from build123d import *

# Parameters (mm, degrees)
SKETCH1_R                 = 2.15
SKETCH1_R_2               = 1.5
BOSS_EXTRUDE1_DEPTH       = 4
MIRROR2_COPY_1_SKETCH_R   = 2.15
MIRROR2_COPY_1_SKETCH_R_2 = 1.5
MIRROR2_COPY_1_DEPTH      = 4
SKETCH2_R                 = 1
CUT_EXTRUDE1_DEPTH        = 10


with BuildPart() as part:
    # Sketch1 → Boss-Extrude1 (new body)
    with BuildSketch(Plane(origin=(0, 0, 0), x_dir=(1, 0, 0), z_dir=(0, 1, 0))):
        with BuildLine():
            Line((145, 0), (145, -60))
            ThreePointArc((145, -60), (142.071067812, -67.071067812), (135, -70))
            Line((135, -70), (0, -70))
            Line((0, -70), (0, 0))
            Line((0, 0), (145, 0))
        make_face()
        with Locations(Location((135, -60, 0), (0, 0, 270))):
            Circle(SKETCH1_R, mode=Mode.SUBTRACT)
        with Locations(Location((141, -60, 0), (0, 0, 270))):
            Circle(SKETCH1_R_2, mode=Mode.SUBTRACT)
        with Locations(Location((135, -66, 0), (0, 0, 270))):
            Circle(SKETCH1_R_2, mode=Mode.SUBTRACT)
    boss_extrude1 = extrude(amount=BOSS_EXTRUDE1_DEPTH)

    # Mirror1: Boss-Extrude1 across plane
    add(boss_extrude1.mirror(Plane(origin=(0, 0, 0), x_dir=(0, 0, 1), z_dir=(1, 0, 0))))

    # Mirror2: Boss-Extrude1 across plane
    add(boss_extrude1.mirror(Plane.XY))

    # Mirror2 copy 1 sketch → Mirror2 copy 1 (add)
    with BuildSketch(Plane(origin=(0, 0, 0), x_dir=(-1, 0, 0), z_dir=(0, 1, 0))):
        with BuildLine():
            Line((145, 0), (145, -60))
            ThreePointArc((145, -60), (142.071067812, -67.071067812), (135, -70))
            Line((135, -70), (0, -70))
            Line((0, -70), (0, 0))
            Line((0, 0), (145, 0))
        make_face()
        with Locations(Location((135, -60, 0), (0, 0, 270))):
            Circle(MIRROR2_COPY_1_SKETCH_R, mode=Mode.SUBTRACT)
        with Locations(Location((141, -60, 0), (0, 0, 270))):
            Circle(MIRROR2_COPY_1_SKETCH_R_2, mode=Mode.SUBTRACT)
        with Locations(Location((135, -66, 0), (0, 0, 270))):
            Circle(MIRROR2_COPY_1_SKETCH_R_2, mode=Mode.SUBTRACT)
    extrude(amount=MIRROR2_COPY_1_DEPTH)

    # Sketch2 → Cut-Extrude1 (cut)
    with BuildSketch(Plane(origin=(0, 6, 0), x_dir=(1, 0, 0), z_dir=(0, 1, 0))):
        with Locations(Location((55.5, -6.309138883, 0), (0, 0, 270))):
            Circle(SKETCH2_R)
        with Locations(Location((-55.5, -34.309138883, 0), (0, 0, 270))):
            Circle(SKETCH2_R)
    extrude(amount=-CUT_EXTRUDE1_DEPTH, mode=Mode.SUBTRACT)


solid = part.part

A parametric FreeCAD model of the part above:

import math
import FreeCAD as App
import Part
import Sketcher

V = App.Vector
Q = App.Units.Quantity

doc = App.newDocument("Part")
body = doc.addObject("PartDesign::Body", "Body")

sketch1 = doc.addObject("Sketcher::SketchObject", "Sketch")
body.addObject(sketch1)
sketch1.AttachmentSupport = (doc.XZ_Plane, [""])
sketch1.MapMode = "FlatFace"
sketch1.addGeometry(Part.LineSegment(V(145, 60, 0), V(145, 0, 0)), False)
sketch1.addGeometry(Part.LineSegment(V(145, 0, 0), V(0, 0, 0)), False)
sketch1.addGeometry(Part.LineSegment(V(0, 0, 0), V(0, 70, 0)), False)
sketch1.addGeometry(Part.LineSegment(V(0, 70, 0), V(135, 70, 0)), False)
sketch1.addGeometry(Part.ArcOfCircle(Part.Circle(V(135, 60, 0), V(0, 0, 1), 10), math.radians(0), math.radians(90)), False)
sketch1.addGeometry(Part.Circle(V(135, 66, 0), V(0, 0, 1), 1.5), False)
sketch1.addGeometry(Part.Circle(V(141, 60, 0), V(0, 0, 1), 1.5), False)
sketch1.addGeometry(Part.Circle(V(135, 60, 0), V(0, 0, 1), 2.1), False)
sketch1.addConstraint(Sketcher.Constraint("Coincident", 0, 2, 1, 1))
sketch1.addConstraint(Sketcher.Constraint("Coincident", 1, 2, 2, 1))
sketch1.addConstraint(Sketcher.Constraint("Coincident", 2, 2, 3, 1))
sketch1.addConstraint(Sketcher.Constraint("Tangent", 3, 2, 4, 2))
sketch1.addConstraint(Sketcher.Constraint("Tangent", 4, 1, 0, 1))
sketch1.addConstraint(Sketcher.Constraint("Vertical", 0))
sketch1.addConstraint(Sketcher.Constraint("Horizontal", 1))
sketch1.addConstraint(Sketcher.Constraint("Vertical", 2))
sketch1.addConstraint(Sketcher.Constraint("Horizontal", 3))
sketch1.addConstraint(Sketcher.Constraint("Coincident", 1, 2, -1, 1))
sketch1.addConstraint(Sketcher.Constraint("Coincident", 7, 3, 4, 3))
sketch1.addConstraint(Sketcher.Constraint("Equal", 5, 6))
sketch1.addConstraint(Sketcher.Constraint("Horizontal", 4, 3, 6, 3))
sketch1.addConstraint(Sketcher.Constraint("Vertical", 4, 3, 5, 3))
sketch1.addConstraint(Sketcher.Constraint("Diameter", 5, Q("3 mm")))
sketch1.addConstraint(Sketcher.Constraint("Radius", 4, Q("10 mm")))
sketch1.addConstraint(Sketcher.Constraint("Diameter", 7, Q("4.3 mm")))
sketch1.addConstraint(Sketcher.Constraint("DistanceX", 1, 2, 1, 1, Q("145 mm")))
sketch1.addConstraint(Sketcher.Constraint("DistanceY", 0, 2, 0, 1, Q("60 mm")))
sketch1.addConstraint(Sketcher.Constraint("DistanceY", -1, 1, 5, 3, Q("66 mm")))
sketch1.addConstraint(Sketcher.Constraint("DistanceX", -1, 1, 6, 3, Q("141 mm")))
pad1 = doc.addObject("PartDesign::Pad", "Pad")
body.addObject(pad1)
pad1.Profile = sketch1
pad1.Length = 4
pad1.Reversed = True
doc.recompute()

mirrored = doc.addObject("PartDesign::Mirrored", "Mirrored")
body.addObject(mirrored)
mirrored.Originals = [pad1]
mirrored.MirrorPlane = (doc.YZ_Plane, [""])
body.Tip = mirrored
doc.recompute()

mirrored2 = doc.addObject("PartDesign::Mirrored", "Mirrored001")
body.addObject(mirrored2)
mirrored2.Originals = [pad1]
mirrored2.MirrorPlane = (doc.XY_Plane, [""])
body.Tip = mirrored2

sketch2 = doc.addObject("Sketcher::SketchObject", "Sketch001")
body.addObject(sketch2)
sketch2.AttachmentSupport = (doc.XZ_Plane, [""])
sketch2.MapMode = "FlatFace"
sketch2.addGeometry(Part.LineSegment(V(-145, -60, 0), V(-145, 0, 0)), False)
sketch2.addGeometry(Part.LineSegment(V(-145, 0, 0), V(0, 0, 0)), False)
sketch2.addGeometry(Part.LineSegment(V(0, 0, 0), V(0, -70, 0)), False)
sketch2.addGeometry(Part.LineSegment(V(0, -70, 0), V(-135, -70, 0)), False)
sketch2.addGeometry(Part.ArcOfCircle(Part.Circle(V(-135, -60, 0), V(0, 0, 1), 10), math.radians(180), math.radians(270)), False)
sketch2.addGeometry(Part.Circle(V(-135, -66, 0), V(0, 0, 1), 1.5), False)
sketch2.addGeometry(Part.Circle(V(-141, -60, 0), V(0, 0, 1), 1.5), False)
sketch2.addGeometry(Part.Circle(V(-135, -60, 0), V(0, 0, 1), 2.1), False)
sketch2.addConstraint(Sketcher.Constraint("Coincident", 0, 2, 1, 1))
sketch2.addConstraint(Sketcher.Constraint("Coincident", 1, 2, 2, 1))
sketch2.addConstraint(Sketcher.Constraint("Coincident", 2, 2, 3, 1))
sketch2.addConstraint(Sketcher.Constraint("Tangent", 3, 2, 4, 2))
sketch2.addConstraint(Sketcher.Constraint("Tangent", 4, 1, 0, 1))
sketch2.addConstraint(Sketcher.Constraint("Vertical", 0))
sketch2.addConstraint(Sketcher.Constraint("Horizontal", 1))
sketch2.addConstraint(Sketcher.Constraint("Vertical", 2))
sketch2.addConstraint(Sketcher.Constraint("Horizontal", 3))
sketch2.addConstraint(Sketcher.Constraint("Coincident", 1, 2, -1, 1))
sketch2.addConstraint(Sketcher.Constraint("Coincident", 7, 3, 4, 3))
sketch2.addConstraint(Sketcher.Constraint("Equal", 5, 6))
sketch2.addConstraint(Sketcher.Constraint("Horizontal", 4, 3, 6, 3))
sketch2.addConstraint(Sketcher.Constraint("Vertical", 4, 3, 5, 3))
sketch2.addConstraint(Sketcher.Constraint("Diameter", 5, Q("3 mm")))
sketch2.addConstraint(Sketcher.Constraint("Radius", 4, Q("10 mm")))
sketch2.addConstraint(Sketcher.Constraint("Diameter", 7, Q("4.3 mm")))
sketch2.addConstraint(Sketcher.Constraint("DistanceX", 1, 1, 1, 2, Q("145 mm")))
sketch2.addConstraint(Sketcher.Constraint("DistanceY", 0, 1, 0, 2, Q("60 mm")))
sketch2.addConstraint(Sketcher.Constraint("DistanceY", 5, 3, -1, 1, Q("66 mm")))
sketch2.addConstraint(Sketcher.Constraint("DistanceX", 6, 3, -1, 1, Q("141 mm")))
pad2 = doc.addObject("PartDesign::Pad", "Pad001")
body.addObject(pad2)
pad2.Profile = sketch2
pad2.Length = 4
pad2.Reversed = True

sketch3 = doc.addObject("Sketcher::SketchObject", "Sketch002")
body.addObject(sketch3)
sketch3.AttachmentSupport = (doc.XZ_Plane, [""])
sketch3.MapMode = "FlatFace"
sketch3.AttachmentOffset = App.Placement(V(0, 0, -6), App.Rotation())
sketch3.addGeometry(Part.Circle(V(55.5, 6.3, 0), V(0, 0, 1), 1), False)
sketch3.addGeometry(Part.Circle(V(-55.5, 34.3, 0), V(0, 0, 1), 1), False)
sketch3.addConstraint(Sketcher.Constraint("Equal", 0, 1))
sketch3.addConstraint(Sketcher.Constraint("Diameter", 0, Q("2 mm")))
sketch3.addConstraint(Sketcher.Constraint("DistanceX", 1, 3, 0, 3, Q("111 mm")))
sketch3.addConstraint(Sketcher.Constraint("DistanceY", 0, 3, 1, 3, Q("28 mm")))
sketch3.addConstraint(Sketcher.Constraint("DistanceX", -1, 1, 0, 3, Q("55.5 mm")))
sketch3.addConstraint(Sketcher.Constraint("DistanceY", -1, 1, 0, 3, Q("6.309139 mm")))
pocket1 = doc.addObject("PartDesign::Pocket", "Pocket")
body.addObject(pocket1)
pocket1.Profile = sketch3
pocket1.Length = 10
pocket1.Reversed = True

doc.recompute()
